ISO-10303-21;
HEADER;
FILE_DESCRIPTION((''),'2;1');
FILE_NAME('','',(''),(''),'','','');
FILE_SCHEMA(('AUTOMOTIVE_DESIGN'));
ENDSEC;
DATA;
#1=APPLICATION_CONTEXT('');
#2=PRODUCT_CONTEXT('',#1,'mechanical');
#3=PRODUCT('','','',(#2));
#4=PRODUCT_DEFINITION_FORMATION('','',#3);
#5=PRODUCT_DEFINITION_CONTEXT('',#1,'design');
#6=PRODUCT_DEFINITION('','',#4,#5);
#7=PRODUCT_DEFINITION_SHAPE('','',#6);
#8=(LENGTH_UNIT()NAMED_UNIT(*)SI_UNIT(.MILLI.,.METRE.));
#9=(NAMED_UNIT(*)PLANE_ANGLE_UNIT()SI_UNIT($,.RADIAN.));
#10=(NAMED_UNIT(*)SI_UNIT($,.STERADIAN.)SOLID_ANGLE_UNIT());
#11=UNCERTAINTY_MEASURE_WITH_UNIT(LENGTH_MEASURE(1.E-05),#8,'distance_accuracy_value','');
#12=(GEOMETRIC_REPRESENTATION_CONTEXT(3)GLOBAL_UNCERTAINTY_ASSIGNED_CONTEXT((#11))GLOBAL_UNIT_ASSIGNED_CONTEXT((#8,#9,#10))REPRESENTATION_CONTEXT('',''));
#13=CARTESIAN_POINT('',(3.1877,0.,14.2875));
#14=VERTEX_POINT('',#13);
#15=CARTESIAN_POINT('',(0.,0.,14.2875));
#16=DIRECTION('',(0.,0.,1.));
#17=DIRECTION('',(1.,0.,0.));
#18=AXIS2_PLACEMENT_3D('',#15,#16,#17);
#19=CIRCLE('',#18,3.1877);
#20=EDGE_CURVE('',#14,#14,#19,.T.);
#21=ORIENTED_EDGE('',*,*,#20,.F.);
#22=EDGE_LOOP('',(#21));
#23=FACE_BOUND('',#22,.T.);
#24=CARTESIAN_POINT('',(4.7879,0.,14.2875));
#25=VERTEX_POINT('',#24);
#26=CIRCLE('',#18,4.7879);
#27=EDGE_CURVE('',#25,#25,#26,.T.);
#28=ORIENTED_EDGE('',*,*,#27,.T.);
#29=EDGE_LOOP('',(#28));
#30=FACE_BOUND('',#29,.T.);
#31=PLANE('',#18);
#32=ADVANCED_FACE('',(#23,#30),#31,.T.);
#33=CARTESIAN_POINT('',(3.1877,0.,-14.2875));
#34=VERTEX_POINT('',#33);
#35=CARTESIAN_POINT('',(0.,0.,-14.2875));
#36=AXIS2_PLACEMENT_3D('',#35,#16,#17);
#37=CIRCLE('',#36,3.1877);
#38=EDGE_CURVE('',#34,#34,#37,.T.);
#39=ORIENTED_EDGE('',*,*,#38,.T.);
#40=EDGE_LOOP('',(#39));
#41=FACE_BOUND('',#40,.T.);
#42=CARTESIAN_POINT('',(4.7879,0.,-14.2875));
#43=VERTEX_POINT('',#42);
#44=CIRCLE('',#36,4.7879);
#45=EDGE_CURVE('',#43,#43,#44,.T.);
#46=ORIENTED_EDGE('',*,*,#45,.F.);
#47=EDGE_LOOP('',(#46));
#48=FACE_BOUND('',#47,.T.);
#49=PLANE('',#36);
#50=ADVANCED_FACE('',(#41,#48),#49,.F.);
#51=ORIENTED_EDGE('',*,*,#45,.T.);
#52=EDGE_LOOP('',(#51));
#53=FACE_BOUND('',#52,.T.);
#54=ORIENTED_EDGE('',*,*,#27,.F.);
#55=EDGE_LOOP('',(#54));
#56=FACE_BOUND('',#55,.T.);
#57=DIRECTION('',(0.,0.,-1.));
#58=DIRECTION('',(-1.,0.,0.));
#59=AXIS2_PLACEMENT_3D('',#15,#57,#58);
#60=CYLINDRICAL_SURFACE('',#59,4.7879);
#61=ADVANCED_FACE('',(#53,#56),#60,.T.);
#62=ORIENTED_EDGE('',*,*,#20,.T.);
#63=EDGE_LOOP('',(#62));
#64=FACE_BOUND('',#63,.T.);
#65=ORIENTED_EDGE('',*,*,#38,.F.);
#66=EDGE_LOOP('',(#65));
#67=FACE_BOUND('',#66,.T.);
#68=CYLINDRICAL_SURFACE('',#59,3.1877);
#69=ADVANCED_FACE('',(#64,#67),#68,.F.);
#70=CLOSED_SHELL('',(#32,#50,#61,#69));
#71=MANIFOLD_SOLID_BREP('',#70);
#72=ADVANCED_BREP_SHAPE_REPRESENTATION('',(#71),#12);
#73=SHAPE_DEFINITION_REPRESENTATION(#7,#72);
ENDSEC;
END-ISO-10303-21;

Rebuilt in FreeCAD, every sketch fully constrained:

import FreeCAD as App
import Part
import Sketcher

V = App.Vector
Q = App.Units.Quantity

doc = App.newDocument("Part")
body = doc.addObject("PartDesign::Body", "Body")

# Sketch on XY plane
sketch1 = body.newObject("Sketcher::SketchObject", "Sketch")
sketch1.AttachmentSupport = (doc.getObject("XY_Plane"), [""])
sketch1.MapMode = "FlatFace"
sketch1.addGeometry([
    Part.Circle(V(0, 0, 0), V(0, 0, 1), 4.8),
    Part.Circle(V(0, 0, 0), V(0, 0, 1), 3.2),
], False)
sketch1.addConstraint([
    Sketcher.Constraint("Coincident", 0, 3, -1, 1),
    Sketcher.Constraint("Coincident", 1, 3, -1, 1),
    Sketcher.Constraint("Diameter", 0, Q("0.377 in")),
    Sketcher.Constraint("Diameter", 1, Q("0.251 in")),
])
pad1 = body.newObject("PartDesign::Pad", "Pad")
pad1.Profile = sketch1
pad1.Length = Q("1.125 in")
pad1.Midplane = True

doc.recompute()
